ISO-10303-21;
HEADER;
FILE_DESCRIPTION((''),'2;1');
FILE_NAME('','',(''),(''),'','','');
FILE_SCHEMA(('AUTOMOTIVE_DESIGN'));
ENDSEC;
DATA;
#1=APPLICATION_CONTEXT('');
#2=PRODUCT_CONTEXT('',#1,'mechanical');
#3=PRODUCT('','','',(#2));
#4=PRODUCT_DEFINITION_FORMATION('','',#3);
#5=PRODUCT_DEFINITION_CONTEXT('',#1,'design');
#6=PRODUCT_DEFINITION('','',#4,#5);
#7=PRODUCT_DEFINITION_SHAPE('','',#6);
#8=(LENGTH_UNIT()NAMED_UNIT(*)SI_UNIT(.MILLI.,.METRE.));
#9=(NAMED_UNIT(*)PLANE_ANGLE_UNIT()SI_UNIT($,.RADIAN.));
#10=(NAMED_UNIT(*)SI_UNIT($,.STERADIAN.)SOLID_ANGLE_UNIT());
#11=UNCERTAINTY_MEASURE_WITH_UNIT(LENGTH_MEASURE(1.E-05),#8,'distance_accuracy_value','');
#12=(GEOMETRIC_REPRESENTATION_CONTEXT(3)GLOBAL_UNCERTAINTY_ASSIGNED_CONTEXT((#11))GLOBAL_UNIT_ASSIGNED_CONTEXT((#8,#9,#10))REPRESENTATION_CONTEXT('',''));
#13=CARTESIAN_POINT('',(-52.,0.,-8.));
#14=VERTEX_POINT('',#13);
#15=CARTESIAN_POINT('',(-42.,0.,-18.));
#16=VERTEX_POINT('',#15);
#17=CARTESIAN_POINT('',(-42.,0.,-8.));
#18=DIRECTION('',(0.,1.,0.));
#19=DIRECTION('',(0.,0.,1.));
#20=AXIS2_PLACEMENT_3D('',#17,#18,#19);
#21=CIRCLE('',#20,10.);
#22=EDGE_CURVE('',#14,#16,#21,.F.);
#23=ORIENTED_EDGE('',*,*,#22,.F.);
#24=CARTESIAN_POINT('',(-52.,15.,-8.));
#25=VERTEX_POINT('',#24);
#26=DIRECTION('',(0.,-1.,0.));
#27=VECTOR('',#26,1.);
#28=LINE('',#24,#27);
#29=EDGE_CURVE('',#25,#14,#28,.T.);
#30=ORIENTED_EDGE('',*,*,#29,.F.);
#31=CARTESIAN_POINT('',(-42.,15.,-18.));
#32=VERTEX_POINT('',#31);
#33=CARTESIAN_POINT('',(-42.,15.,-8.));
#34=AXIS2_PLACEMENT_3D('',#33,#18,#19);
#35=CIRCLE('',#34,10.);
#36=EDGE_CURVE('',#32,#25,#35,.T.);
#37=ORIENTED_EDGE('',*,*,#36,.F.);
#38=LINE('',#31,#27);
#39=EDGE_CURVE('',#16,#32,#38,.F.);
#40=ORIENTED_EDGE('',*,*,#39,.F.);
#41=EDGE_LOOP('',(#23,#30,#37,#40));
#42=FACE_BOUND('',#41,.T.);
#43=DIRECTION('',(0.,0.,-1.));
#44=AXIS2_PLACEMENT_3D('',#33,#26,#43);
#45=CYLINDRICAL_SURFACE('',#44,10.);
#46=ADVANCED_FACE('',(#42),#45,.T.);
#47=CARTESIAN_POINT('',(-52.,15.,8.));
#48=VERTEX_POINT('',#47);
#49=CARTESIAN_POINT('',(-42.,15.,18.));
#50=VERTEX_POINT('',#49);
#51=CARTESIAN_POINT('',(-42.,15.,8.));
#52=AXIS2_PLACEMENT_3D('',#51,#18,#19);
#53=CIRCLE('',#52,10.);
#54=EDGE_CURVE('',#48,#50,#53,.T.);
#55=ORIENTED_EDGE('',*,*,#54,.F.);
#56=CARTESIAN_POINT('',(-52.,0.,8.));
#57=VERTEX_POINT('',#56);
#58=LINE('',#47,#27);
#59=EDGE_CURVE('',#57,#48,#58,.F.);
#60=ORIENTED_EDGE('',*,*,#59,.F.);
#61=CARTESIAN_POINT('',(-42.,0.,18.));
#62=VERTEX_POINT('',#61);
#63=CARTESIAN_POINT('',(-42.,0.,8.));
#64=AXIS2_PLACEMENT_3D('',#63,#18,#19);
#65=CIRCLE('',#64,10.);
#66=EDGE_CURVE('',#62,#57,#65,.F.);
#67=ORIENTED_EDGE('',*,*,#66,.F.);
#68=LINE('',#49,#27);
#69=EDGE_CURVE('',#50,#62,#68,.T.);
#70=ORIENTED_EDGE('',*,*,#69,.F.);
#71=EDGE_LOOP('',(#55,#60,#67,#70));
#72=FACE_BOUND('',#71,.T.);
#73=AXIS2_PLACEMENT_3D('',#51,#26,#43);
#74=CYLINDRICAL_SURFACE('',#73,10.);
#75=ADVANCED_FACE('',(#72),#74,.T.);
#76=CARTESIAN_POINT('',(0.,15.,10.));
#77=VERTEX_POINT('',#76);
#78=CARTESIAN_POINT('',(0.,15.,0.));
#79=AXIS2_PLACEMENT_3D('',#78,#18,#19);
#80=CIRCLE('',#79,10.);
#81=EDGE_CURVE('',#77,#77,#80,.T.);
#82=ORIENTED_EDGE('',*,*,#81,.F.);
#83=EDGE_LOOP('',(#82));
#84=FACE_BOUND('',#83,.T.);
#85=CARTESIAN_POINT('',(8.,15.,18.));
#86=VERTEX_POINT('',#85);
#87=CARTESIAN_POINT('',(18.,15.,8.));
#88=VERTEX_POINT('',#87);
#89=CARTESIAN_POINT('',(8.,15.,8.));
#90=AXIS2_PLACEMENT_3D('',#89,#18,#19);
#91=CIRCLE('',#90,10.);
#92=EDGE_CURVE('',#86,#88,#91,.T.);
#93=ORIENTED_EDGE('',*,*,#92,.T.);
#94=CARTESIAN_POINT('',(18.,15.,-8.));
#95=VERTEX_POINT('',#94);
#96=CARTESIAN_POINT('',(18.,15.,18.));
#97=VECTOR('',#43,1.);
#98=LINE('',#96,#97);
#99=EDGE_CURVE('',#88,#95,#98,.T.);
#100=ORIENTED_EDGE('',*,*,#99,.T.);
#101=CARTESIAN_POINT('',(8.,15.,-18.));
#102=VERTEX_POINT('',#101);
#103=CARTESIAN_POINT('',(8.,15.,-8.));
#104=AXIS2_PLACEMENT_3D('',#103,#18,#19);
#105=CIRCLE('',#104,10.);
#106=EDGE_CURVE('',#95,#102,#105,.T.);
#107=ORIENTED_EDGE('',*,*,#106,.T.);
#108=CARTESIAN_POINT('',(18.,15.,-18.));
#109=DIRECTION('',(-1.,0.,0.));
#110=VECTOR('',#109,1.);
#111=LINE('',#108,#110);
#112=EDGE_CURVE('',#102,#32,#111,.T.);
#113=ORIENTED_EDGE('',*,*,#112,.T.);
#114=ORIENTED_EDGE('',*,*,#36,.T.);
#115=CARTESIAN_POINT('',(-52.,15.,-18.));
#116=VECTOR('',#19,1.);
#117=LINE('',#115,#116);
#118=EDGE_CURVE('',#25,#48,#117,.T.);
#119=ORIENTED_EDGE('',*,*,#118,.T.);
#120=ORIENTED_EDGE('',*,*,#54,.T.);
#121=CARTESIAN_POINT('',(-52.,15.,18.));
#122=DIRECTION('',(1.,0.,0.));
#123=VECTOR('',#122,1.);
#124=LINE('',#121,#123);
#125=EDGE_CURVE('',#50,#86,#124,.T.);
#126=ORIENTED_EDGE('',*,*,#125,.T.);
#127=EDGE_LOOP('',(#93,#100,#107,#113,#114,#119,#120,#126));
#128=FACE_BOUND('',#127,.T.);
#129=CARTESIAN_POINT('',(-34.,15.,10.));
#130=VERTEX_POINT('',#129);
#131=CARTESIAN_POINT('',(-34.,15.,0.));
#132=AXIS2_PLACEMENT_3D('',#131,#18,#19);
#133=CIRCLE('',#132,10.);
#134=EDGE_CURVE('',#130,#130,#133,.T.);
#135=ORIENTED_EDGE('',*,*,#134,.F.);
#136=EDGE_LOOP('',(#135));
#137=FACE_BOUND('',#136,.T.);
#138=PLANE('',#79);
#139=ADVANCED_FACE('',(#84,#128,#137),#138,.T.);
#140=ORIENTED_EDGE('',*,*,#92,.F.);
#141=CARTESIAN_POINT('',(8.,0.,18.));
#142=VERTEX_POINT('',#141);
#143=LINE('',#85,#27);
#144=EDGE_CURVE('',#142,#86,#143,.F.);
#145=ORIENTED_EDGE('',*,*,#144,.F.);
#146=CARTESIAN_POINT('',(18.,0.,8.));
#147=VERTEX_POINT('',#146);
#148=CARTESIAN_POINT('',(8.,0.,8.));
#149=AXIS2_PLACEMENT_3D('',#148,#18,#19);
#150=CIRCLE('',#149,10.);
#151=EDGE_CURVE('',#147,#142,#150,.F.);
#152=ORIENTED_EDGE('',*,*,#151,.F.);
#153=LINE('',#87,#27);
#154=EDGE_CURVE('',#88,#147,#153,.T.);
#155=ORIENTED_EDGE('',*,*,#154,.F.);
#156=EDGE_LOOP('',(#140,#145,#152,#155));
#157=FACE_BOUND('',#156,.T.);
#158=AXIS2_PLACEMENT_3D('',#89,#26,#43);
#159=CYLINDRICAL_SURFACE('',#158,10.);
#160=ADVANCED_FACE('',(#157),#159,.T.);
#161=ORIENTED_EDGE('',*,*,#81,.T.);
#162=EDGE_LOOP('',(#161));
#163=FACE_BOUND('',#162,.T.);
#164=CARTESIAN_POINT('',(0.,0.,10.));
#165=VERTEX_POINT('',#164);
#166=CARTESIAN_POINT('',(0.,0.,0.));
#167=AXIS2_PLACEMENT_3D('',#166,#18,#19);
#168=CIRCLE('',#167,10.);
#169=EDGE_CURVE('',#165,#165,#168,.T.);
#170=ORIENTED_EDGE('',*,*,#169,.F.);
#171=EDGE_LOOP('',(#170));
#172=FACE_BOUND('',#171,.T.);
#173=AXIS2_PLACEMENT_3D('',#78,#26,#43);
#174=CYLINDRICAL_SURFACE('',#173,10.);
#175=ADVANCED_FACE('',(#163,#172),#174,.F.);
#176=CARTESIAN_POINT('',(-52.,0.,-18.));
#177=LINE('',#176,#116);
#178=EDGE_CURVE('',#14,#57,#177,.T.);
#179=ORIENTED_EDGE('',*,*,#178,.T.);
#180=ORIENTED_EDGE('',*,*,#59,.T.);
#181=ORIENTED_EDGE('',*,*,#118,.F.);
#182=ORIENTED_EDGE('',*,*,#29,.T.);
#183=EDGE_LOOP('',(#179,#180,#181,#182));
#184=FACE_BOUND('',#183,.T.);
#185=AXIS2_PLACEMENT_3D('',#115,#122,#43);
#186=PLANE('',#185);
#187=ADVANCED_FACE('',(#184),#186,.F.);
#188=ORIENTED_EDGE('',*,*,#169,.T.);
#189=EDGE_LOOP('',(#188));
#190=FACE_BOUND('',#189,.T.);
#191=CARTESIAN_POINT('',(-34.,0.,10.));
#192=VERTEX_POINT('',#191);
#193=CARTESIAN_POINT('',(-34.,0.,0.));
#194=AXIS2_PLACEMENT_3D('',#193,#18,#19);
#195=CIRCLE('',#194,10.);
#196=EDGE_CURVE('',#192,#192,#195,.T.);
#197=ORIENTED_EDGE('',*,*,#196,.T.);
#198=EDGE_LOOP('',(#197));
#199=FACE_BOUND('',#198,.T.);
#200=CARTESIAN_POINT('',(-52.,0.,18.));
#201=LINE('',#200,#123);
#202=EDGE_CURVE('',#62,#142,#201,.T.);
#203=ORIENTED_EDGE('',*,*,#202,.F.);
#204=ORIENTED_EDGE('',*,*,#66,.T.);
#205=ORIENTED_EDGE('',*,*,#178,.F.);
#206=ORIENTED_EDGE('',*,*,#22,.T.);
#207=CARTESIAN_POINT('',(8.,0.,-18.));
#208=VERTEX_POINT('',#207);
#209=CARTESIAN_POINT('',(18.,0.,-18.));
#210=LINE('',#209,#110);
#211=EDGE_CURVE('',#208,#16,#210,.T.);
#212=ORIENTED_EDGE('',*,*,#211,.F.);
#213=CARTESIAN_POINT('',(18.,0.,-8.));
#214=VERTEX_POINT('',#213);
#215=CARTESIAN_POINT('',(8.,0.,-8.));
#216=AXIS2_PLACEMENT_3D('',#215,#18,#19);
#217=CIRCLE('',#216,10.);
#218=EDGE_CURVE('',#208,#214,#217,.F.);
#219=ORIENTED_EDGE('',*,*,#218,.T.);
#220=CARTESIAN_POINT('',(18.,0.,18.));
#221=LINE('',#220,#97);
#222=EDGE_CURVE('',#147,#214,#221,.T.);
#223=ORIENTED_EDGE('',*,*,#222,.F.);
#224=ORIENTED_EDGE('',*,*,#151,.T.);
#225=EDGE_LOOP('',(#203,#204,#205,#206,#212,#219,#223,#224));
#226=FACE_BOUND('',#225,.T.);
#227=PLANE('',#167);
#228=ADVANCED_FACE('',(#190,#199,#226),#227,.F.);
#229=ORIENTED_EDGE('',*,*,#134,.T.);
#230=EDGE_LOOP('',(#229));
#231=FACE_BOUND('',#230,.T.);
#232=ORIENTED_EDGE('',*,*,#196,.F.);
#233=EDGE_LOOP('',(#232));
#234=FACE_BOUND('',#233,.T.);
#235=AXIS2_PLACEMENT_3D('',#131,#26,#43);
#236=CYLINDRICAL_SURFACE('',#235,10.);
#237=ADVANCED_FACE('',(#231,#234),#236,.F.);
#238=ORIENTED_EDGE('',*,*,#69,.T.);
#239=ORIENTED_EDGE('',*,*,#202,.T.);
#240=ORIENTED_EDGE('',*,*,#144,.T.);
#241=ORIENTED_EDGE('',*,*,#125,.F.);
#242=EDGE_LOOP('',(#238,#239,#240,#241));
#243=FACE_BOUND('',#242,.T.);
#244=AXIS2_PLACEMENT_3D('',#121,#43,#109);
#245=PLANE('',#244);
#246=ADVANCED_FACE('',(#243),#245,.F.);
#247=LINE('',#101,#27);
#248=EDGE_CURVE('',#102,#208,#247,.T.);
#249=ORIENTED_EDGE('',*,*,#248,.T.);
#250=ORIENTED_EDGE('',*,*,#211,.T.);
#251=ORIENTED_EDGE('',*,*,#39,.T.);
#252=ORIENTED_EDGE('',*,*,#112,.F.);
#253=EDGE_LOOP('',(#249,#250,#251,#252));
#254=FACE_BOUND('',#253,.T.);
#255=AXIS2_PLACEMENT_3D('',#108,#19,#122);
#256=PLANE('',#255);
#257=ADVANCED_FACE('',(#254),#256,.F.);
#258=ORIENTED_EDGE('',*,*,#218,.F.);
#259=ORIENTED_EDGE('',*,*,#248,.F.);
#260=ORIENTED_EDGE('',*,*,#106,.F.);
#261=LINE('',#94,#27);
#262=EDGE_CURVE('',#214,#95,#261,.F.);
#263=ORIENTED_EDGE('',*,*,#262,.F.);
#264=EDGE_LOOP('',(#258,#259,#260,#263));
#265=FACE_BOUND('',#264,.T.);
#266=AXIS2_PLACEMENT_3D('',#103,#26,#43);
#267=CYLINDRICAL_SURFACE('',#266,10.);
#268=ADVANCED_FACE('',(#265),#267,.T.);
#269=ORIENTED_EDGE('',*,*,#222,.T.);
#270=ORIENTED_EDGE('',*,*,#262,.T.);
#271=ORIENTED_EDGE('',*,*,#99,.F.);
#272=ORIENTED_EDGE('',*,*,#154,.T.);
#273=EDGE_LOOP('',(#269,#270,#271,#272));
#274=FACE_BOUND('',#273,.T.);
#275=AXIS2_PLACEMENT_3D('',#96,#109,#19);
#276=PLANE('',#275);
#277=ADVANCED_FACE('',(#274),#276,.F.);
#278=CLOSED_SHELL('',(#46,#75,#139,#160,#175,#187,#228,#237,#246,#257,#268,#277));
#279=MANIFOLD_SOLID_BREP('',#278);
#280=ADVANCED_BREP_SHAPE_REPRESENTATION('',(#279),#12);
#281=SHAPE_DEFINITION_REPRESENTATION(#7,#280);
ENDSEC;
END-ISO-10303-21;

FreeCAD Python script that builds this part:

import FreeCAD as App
import Part
import Sketcher

V = App.Vector
Q = App.Units.Quantity


def edges_at(feature, points):
    """Names of the edges that pass closest to the given points."""
    edges = feature.Shape.Edges
    near = lambda p: min(range(len(edges)), key=lambda i: edges[i].distToShape(Part.Vertex(*p))[0])
    return sorted({f"Edge{near(p) + 1}" for p in points})

doc = App.newDocument("Part")
params = doc.addObject("Spreadsheet::Sheet", "Params")
for row, (alias, value) in enumerate([
    ("sketch1_diameter", "20 mm"),
    ("sketch1_width", "70 mm"),
    ("sketch1_height", "36 mm"),
    ("pad1_length", "15 mm"),
    ("fillet_radius", "10 mm"),
], start=1):
    params.set(f"A{row}", alias)
    params.set(f"B{row}", "=" + value)
    params.setAlias(f"B{row}", alias)

body = doc.addObject("PartDesign::Body", "Body")

sketch1 = doc.addObject("Sketcher::SketchObject", "Sketch")
body.addObject(sketch1)
sketch1.AttachmentSupport = (doc.XZ_Plane, [""])
sketch1.MapMode = "FlatFace"
sketch1.addGeometry(Part.LineSegment(V(-52, -18, 0), V(-52, 18, 0)), False)
sketch1.addGeometry(Part.LineSegment(V(-52, 18, 0), V(18, 18, 0)), False)
sketch1.addGeometry(Part.LineSegment(V(18, 18, 0), V(18, -18, 0)), False)
sketch1.addGeometry(Part.LineSegment(V(18, -18, 0), V(-52, -18, 0)), False)
sketch1.addGeometry(Part.Circle(V(-34, 0, 0), V(0, 0, 1), 10), False)
sketch1.addGeometry(Part.Circle(V(0, 0, 0), V(0, 0, 1), 10), False)
sketch1.addConstraint(Sketcher.Constraint("Coincident", 0, 2, 1, 1))
sketch1.addConstraint(Sketcher.Constraint("Coincident", 1, 2, 2, 1))
sketch1.addConstraint(Sketcher.Constraint("Coincident", 2, 2, 3, 1))
sketch1.addConstraint(Sketcher.Constraint("Coincident", 3, 2, 0, 1))
sketch1.addConstraint(Sketcher.Constraint("Vertical", 0))
sketch1.addConstraint(Sketcher.Constraint("Horizontal", 1))
sketch1.addConstraint(Sketcher.Constraint("Vertical", 2))
sketch1.addConstraint(Sketcher.Constraint("Horizontal", 3))
sketch1.addConstraint(Sketcher.Constraint("Coincident", 5, 3, -1, 1))
sketch1.addConstraint(Sketcher.Constraint("Equal", 4, 5))
sketch1.addConstraint(Sketcher.Constraint("PointOnObject", 4, 3, -1))
sketch1.addConstraint(Sketcher.Constraint("Diameter", 4, Q("20 mm")))
sketch1.addConstraint(Sketcher.Constraint("DistanceX", 1, 1, 1, 2, Q("70 mm")))
sketch1.addConstraint(Sketcher.Constraint("DistanceY", 0, 1, 0, 2, Q("36 mm")))
sketch1.addConstraint(Sketcher.Constraint("DistanceX", 4, 3, -1, 1, Q("34 mm")))
sketch1.addConstraint(Sketcher.Constraint("DistanceX", 0, 2, -1, 1, Q("52 mm")))
sketch1.addConstraint(Sketcher.Constraint("DistanceY", -1, 1, 0, 2, Q("18 mm")))
sketch1.setExpression("Constraints[11]", "Params.sketch1_diameter")
sketch1.setExpression("Constraints[12]", "Params.sketch1_width")
sketch1.setExpression("Constraints[13]", "Params.sketch1_height")
pad1 = doc.addObject("PartDesign::Pad", "Pad")
body.addObject(pad1)
pad1.Profile = sketch1
pad1.setExpression("Length", "Params.pad1_length")
pad1.Reversed = True
doc.recompute()

fillet = doc.addObject("PartDesign::Fillet", "Fillet")
body.addObject(fillet)
fillet.Base = (pad1, edges_at(pad1, [
    (-52, 7.5, 18),
    (-52, 7.5, -18),
    (18, 7.5, -18),
    (18, 7.5, 18),
]))
fillet.setExpression("Radius", "Params.fillet_radius")

doc.recompute()
